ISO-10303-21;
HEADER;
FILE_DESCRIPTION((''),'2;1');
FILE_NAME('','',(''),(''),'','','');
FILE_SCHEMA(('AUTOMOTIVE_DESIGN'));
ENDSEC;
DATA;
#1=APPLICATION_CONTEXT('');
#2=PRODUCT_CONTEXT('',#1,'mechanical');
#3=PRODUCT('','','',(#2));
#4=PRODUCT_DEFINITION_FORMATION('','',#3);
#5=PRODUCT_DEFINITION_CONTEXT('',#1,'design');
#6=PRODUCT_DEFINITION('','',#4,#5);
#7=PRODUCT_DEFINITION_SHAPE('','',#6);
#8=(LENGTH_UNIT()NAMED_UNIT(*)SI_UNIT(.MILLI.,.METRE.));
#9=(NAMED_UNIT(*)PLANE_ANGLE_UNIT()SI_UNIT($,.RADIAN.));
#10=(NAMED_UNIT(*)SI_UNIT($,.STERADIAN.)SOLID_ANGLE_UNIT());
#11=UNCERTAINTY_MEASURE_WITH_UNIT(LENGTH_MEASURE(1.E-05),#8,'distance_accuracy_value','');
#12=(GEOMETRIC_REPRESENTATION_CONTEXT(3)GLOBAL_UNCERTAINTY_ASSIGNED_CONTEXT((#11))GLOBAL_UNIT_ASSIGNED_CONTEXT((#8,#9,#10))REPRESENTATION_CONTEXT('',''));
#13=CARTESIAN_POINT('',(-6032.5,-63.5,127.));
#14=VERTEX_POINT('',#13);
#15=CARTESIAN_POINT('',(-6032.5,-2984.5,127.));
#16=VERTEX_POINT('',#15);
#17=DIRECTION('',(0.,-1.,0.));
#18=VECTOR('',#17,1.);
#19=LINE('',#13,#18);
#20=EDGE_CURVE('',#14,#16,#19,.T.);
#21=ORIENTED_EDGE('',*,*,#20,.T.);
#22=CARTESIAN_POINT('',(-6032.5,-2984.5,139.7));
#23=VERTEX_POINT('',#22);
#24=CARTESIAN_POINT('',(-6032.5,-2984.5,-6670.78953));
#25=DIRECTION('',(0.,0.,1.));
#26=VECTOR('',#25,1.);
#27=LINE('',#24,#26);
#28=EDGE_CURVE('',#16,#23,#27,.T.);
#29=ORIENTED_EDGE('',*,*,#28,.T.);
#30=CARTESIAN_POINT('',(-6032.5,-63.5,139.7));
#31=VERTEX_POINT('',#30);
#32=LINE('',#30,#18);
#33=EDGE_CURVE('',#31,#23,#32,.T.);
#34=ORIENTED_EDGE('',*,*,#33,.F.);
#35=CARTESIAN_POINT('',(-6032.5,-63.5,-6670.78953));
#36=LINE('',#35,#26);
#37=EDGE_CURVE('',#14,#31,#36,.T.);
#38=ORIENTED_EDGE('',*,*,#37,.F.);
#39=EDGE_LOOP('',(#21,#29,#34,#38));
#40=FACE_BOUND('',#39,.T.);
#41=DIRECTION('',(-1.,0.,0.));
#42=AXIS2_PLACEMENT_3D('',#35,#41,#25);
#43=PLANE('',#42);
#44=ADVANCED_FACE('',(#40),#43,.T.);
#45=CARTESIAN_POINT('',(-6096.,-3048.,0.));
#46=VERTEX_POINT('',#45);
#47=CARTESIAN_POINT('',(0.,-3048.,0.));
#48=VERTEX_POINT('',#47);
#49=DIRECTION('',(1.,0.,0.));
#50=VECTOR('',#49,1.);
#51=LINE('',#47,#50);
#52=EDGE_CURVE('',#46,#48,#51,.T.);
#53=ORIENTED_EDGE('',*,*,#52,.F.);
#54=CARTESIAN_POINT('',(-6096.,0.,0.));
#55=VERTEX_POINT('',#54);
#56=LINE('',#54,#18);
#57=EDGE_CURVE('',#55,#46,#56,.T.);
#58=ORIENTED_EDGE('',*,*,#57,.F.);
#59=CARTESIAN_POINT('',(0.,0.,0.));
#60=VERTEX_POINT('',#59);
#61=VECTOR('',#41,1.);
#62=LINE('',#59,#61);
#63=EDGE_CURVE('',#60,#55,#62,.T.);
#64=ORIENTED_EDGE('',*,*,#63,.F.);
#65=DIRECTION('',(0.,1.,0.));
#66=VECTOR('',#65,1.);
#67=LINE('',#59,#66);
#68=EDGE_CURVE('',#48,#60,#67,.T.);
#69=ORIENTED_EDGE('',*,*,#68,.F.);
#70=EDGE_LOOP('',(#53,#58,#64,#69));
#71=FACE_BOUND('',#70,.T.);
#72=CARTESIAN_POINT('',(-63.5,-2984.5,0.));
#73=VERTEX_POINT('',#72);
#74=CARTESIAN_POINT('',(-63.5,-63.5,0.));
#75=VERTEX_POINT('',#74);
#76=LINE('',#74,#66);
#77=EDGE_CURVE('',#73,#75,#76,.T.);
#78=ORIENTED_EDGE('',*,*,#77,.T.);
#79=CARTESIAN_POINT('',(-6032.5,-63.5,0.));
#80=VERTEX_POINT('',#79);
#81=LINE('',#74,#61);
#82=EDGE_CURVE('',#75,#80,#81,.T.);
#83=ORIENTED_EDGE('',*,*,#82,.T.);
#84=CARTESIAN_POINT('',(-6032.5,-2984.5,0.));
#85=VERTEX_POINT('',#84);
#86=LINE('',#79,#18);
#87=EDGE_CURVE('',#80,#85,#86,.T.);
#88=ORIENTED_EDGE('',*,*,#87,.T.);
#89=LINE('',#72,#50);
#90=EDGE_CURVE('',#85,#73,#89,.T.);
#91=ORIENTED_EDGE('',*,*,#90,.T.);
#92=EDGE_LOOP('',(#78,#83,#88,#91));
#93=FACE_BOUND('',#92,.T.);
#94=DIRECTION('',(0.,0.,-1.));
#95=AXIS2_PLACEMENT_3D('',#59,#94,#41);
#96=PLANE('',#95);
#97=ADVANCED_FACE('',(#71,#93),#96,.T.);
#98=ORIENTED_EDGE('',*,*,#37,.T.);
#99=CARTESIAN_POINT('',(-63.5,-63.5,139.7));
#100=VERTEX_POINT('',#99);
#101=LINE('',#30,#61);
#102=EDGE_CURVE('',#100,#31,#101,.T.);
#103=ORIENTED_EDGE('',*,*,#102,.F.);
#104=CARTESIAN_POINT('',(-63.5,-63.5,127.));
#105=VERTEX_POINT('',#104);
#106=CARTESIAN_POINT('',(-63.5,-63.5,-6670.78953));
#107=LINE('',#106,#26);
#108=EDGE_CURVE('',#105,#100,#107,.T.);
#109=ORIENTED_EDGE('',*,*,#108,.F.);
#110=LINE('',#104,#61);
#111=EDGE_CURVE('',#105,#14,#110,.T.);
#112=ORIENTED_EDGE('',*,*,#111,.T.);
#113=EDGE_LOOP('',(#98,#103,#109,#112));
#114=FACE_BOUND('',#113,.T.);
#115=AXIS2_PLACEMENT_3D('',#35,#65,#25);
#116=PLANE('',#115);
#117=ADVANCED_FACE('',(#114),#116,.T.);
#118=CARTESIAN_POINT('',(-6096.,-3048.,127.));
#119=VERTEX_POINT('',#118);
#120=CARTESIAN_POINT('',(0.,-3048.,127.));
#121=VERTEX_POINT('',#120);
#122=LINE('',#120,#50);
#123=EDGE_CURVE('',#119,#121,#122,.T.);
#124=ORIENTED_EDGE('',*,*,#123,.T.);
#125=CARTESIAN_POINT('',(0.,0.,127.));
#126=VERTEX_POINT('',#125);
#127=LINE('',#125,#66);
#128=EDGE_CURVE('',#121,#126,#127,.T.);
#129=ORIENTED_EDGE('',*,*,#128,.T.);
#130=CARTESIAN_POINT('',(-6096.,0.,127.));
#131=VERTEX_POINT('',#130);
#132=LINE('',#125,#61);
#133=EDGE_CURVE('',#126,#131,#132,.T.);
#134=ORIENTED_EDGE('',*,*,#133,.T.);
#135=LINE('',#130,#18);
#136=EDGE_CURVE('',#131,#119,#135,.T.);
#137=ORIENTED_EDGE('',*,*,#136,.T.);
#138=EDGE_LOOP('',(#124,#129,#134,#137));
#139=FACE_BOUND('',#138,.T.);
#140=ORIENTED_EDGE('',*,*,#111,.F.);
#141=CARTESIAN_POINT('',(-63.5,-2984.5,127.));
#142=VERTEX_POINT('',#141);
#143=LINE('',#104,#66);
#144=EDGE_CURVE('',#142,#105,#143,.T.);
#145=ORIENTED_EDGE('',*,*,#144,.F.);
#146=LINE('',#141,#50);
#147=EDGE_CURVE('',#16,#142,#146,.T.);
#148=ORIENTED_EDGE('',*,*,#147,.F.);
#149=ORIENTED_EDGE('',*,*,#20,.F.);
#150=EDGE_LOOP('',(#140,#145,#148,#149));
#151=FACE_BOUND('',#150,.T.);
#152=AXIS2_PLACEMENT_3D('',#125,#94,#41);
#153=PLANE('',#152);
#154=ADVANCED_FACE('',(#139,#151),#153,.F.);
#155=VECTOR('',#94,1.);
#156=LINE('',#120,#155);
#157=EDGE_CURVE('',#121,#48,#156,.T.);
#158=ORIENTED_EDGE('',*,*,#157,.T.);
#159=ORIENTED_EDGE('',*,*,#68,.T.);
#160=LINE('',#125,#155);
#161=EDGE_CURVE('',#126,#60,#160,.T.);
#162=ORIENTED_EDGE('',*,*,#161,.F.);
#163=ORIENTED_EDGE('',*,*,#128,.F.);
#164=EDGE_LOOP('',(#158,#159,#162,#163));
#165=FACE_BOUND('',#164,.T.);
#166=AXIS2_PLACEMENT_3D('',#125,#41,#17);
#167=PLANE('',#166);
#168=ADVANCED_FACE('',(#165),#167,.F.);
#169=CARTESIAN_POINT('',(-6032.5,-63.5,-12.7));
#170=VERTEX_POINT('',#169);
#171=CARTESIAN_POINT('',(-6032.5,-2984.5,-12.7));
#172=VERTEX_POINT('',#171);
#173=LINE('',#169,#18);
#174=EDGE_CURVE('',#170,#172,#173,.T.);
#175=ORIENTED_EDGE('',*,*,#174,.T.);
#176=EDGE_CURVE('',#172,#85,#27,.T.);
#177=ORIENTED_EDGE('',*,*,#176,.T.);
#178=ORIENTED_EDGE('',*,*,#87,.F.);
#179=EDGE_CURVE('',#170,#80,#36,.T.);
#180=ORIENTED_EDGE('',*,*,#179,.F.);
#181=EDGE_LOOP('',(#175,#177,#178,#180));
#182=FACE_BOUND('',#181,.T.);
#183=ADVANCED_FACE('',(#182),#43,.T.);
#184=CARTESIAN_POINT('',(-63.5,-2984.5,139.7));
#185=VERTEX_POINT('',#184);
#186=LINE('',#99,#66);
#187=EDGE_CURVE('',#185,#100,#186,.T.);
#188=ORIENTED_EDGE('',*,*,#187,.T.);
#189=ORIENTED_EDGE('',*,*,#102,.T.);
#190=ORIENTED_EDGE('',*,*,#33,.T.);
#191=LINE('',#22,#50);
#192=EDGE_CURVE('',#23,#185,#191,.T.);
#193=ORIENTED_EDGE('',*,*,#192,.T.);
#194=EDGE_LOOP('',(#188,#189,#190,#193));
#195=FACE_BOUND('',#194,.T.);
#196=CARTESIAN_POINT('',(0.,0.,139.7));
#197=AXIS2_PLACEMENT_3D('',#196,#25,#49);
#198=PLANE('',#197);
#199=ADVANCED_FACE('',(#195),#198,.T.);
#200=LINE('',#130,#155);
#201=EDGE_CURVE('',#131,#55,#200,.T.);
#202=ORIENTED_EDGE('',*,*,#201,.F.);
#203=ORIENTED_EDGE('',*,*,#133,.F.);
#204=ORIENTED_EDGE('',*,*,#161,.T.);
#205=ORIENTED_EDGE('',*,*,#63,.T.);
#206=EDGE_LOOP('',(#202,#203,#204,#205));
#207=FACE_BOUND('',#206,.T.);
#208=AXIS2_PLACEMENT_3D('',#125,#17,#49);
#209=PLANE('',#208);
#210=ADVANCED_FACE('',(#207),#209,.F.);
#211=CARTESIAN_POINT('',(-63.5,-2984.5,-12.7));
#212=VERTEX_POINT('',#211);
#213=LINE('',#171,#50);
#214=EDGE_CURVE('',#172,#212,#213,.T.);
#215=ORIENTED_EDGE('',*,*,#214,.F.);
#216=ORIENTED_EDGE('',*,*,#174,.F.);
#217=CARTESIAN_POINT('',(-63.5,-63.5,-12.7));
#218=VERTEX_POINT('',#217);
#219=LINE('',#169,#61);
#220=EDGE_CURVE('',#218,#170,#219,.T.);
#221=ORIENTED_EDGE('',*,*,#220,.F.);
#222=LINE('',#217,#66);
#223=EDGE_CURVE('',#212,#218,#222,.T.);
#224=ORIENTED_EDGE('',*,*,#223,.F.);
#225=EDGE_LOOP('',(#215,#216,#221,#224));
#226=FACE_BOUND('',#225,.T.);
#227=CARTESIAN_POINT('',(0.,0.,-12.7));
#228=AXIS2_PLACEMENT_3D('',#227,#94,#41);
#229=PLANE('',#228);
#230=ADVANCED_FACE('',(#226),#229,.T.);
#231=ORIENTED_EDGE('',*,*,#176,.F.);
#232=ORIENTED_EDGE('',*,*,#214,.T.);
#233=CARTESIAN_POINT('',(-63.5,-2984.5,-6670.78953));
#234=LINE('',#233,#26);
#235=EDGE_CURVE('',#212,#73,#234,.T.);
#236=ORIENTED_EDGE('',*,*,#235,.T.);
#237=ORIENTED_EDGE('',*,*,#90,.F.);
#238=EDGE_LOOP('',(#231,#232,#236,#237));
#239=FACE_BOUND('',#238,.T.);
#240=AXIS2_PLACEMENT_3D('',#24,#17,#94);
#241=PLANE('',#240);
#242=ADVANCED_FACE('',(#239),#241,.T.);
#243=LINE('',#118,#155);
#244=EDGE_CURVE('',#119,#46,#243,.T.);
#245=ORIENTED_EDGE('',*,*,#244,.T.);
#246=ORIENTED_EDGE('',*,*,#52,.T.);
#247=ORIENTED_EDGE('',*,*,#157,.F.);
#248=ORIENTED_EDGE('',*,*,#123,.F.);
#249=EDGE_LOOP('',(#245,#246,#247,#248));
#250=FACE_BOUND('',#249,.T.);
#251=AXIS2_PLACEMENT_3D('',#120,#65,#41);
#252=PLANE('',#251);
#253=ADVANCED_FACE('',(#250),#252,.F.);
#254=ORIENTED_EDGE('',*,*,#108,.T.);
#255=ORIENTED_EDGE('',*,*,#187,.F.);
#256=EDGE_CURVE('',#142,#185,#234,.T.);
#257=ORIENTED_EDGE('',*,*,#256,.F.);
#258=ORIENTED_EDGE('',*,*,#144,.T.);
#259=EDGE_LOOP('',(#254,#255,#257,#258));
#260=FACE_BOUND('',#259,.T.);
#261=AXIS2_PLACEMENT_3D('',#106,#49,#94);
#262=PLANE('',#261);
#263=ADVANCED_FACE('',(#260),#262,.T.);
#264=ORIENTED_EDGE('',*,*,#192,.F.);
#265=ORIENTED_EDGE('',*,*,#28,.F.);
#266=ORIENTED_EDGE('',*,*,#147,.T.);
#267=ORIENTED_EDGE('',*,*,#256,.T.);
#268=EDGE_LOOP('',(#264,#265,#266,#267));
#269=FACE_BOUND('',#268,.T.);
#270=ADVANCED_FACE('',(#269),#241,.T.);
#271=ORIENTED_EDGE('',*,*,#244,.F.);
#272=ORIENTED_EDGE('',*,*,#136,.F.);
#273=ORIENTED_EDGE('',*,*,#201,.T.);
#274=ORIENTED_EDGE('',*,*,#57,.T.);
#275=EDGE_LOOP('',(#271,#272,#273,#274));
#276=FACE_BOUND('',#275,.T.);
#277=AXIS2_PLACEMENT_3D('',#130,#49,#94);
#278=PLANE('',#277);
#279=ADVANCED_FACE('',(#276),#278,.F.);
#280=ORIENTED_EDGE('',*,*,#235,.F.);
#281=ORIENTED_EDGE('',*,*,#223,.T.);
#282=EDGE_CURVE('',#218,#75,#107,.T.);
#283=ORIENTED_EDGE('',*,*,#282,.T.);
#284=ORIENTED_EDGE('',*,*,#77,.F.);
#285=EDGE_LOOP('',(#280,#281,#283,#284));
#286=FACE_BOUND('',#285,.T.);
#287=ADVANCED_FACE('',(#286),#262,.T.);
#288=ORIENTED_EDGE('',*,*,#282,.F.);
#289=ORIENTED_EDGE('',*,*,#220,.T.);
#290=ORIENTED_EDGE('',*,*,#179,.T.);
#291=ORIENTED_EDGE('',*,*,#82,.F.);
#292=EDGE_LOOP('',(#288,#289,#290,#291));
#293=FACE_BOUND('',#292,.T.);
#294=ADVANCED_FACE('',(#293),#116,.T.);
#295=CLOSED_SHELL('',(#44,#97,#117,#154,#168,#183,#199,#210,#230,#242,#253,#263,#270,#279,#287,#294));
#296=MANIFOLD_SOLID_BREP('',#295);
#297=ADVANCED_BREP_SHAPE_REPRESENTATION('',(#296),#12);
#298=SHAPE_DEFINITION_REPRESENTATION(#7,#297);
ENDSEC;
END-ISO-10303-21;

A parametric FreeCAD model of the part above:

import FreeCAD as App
import Part
import Sketcher
from FreeCAD import Vector
Q = App.Units.Quantity

doc = App.newDocument("Part")
body = doc.addObject("PartDesign::Body", "Body")

# Sketch on XY plane
sketch1 = body.newObject("Sketcher::SketchObject", "Sketch")
sketch1.AttachmentSupport = (doc.getObject("XY_Plane"), [""])
sketch1.MapMode = "FlatFace"
sketch1.addGeometry([
    Part.LineSegment(Vector(-6096, 0, 0), Vector(-6096, -3048, 0)),
    Part.LineSegment(Vector(-6096, -3048, 0), Vector(0, -3048, 0)),
    Part.LineSegment(Vector(0, -3048, 0), Vector(0, 0, 0)),
    Part.LineSegment(Vector(0, 0, 0), Vector(-6096, 0, 0)),
], False)
sketch1.addConstraint([
    Sketcher.Constraint("Coincident", 0, 2, 1, 1),
    Sketcher.Constraint("Coincident", 1, 2, 2, 1),
    Sketcher.Constraint("Coincident", 2, 2, 3, 1),
    Sketcher.Constraint("Coincident", 3, 2, 0, 1),
    Sketcher.Constraint("Vertical", 0),
    Sketcher.Constraint("Horizontal", 1),
    Sketcher.Constraint("Vertical", 2),
    Sketcher.Constraint("Horizontal", 3),
    Sketcher.Constraint("Coincident", 2, 2, -1, 1),
    Sketcher.Constraint("DistanceX", 1, 1, 1, 2, Q("240 in")),
    Sketcher.Constraint("DistanceY", 0, 2, 0, 1, Q("120 in")),
])
pad1 = body.newObject("PartDesign::Pad", "Pad")
pad1.Profile = sketch1
pad1.Length = Q("5 in")

# Sketch on XY plane
sketch2 = body.newObject("Sketcher::SketchObject", "Sketch001")
sketch2.AttachmentSupport = (doc.getObject("XY_Plane"), [""])
sketch2.MapMode = "FlatFace"
sketch2.AttachmentOffset = App.Placement(Vector(0, 0, 5 * 25.4), App.Rotation())
sketch2.addGeometry([
    Part.LineSegment(Vector(-6032.5, -63.5, 0), Vector(-6032.5, -2984.5, 0)),
    Part.LineSegment(Vector(-6032.5, -2984.5, 0), Vector(-63.5, -2984.5, 0)),
    Part.LineSegment(Vector(-63.5, -2984.5, 0), Vector(-63.5, -63.5, 0)),
    Part.LineSegment(Vector(-63.5, -63.5, 0), Vector(-6032.5, -63.5, 0)),
], False)
sketch2.addConstraint([
    Sketcher.Constraint("Coincident", 0, 2, 1, 1),
    Sketcher.Constraint("Coincident", 1, 2, 2, 1),
    Sketcher.Constraint("Coincident", 2, 2, 3, 1),
    Sketcher.Constraint("Coincident", 3, 2, 0, 1),
    Sketcher.Constraint("Vertical", 0),
    Sketcher.Constraint("Horizontal", 1),
    Sketcher.Constraint("Vertical", 2),
    Sketcher.Constraint("Horizontal", 3),
    Sketcher.Constraint("DistanceX", 1, 1, 1, 2, Q("235 in")),
    Sketcher.Constraint("DistanceY", 0, 2, 0, 1, Q("115 in")),
    Sketcher.Constraint("DistanceX", 0, 2, -1, 1, Q("237.5 in")),
    Sketcher.Constraint("DistanceY", 0, 2, -1, 1, Q("117.5 in")),
])
pocket1 = body.newObject("PartDesign::Pocket", "Pocket")
pocket1.Profile = sketch2
pocket1.Type = "UpToFirst"

# Sketch on XY plane
sketch3 = body.newObject("Sketcher::SketchObject", "Sketch002")
sketch3.AttachmentSupport = (doc.getObject("XY_Plane"), [""])
sketch3.MapMode = "FlatFace"
sketch3.AttachmentOffset = App.Placement(Vector(0, 0, 5 * 25.4), App.Rotation())
sketch3.addGeometry([
    Part.LineSegment(Vector(-6032.5, -63.5, 0), Vector(-6032.5, -2984.5, 0)),
    Part.LineSegment(Vector(-6032.5, -2984.5, 0), Vector(-63.5, -2984.5, 0)),
    Part.LineSegment(Vector(-63.5, -2984.5, 0), Vector(-63.5, -63.5, 0)),
    Part.LineSegment(Vector(-63.5, -63.5, 0), Vector(-6032.5, -63.5, 0)),
], False)
sketch3.addConstraint([
    Sketcher.Constraint("Coincident", 0, 2, 1, 1),
    Sketcher.Constraint("Coincident", 1, 2, 2, 1),
    Sketcher.Constraint("Coincident", 2, 2, 3, 1),
    Sketcher.Constraint("Coincident", 3, 2, 0, 1),
    Sketcher.Constraint("Vertical", 0),
    Sketcher.Constraint("Horizontal", 1),
    Sketcher.Constraint("Vertical", 2),
    Sketcher.Constraint("Horizontal", 3),
    Sketcher.Constraint("DistanceX", 1, 1, 1, 2, Q("235 in")),
    Sketcher.Constraint("DistanceY", 0, 2, 0, 1, Q("115 in")),
    Sketcher.Constraint("DistanceX", 0, 2, -1, 1, Q("237.5 in")),
    Sketcher.Constraint("DistanceY", 0, 2, -1, 1, Q("117.5 in")),
])
pad2 = body.newObject("PartDesign::Pad", "Pad001")
pad2.Profile = sketch3
pad2.Type = "TwoLengths"
pad2.Length = Q("0.5 in")
pad2.Length2 = Q("5.5 in")

doc.recompute()
